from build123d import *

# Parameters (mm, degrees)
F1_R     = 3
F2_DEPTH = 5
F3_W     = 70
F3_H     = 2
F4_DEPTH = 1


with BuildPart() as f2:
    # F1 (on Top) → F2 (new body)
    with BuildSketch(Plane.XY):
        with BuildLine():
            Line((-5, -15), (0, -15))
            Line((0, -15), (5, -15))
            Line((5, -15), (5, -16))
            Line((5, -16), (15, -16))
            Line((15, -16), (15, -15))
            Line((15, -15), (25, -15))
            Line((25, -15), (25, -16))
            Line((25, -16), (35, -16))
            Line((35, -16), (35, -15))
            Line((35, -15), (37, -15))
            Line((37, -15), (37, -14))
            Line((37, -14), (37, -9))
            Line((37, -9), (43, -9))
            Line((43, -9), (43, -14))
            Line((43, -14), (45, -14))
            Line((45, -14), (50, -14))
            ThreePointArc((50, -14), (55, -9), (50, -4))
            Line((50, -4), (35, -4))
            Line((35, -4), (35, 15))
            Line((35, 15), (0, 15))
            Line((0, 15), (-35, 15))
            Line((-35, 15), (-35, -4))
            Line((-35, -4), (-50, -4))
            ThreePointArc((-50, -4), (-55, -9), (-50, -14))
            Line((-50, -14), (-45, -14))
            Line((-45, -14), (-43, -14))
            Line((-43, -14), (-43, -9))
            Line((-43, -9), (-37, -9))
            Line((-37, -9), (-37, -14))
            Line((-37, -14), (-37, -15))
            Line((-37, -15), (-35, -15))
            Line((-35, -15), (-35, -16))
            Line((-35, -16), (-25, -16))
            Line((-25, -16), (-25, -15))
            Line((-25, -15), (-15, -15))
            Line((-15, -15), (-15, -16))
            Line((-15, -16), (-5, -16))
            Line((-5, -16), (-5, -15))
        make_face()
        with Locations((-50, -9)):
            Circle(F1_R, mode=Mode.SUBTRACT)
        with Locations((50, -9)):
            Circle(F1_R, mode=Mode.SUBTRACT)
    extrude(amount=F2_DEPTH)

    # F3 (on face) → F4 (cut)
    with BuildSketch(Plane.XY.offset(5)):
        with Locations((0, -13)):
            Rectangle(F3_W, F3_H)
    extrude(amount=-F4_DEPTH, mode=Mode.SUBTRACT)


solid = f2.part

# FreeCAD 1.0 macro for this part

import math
import FreeCAD as App
import Part
import Sketcher

V = App.Vector


def add_polygon(sketch, points):
    """Adds a closed chain of lines whose ends are joined by coincident constraints."""
    first, n = sketch.GeometryCount, len(points)
    for a, b in zip(points, points[1:] + points[:1]):
        sketch.addGeometry(Part.LineSegment(App.Vector(*a, 0), App.Vector(*b, 0)), False)
    for i in range(n):
        sketch.addConstraint(Sketcher.Constraint("Coincident", first + i, 2, first + (i + 1) % n, 1))

doc = App.newDocument("Part")
body = doc.addObject("PartDesign::Body", "Body")

# Sketch on XY plane
sketch1 = body.newObject("Sketcher::SketchObject", "Sketch")
sketch1.AttachmentSupport = (doc.getObject("XY_Plane"), [""])
sketch1.MapMode = "FlatFace"
sketch1.addGeometry(Part.LineSegment(V(-5, -15, 0), V(5, -15, 0)), False)
sketch1.addGeometry(Part.LineSegment(V(5, -15, 0), V(5, -16, 0)), False)
sketch1.addGeometry(Part.LineSegment(V(5, -16, 0), V(15, -16, 0)), False)
sketch1.addGeometry(Part.LineSegment(V(15, -16, 0), V(15, -15, 0)), False)
sketch1.addGeometry(Part.LineSegment(V(15, -15, 0), V(25, -15, 0)), False)
sketch1.addGeometry(Part.LineSegment(V(25, -15, 0), V(25, -16, 0)), False)
sketch1.addGeometry(Part.LineSegment(V(25, -16, 0), V(35, -16, 0)), False)
sketch1.addGeometry(Part.LineSegment(V(35, -16, 0), V(35, -15, 0)), False)
sketch1.addGeometry(Part.LineSegment(V(35, -15, 0), V(37, -15, 0)), False)
sketch1.addGeometry(Part.LineSegment(V(37, -15, 0), V(37, -9, 0)), False)
sketch1.addGeometry(Part.LineSegment(V(37, -9, 0), V(43, -9, 0)), False)
sketch1.addGeometry(Part.LineSegment(V(43, -9, 0), V(43, -14, 0)), False)
sketch1.addGeometry(Part.LineSegment(V(43, -14, 0), V(50, -14, 0)), False)
sketch1.addGeometry(Part.ArcOfCircle(Part.Circle(V(50, -9, 0), V(0, 0, 1), 5), math.radians(-90), math.radians(90)), False)
sketch1.addGeometry(Part.LineSegment(V(50, -4, 0), V(35, -4, 0)), False)
sketch1.addGeometry(Part.LineSegment(V(35, -4, 0), V(35, 15, 0)), False)
sketch1.addGeometry(Part.LineSegment(V(35, 15, 0), V(-35, 15, 0)), False)
sketch1.addGeometry(Part.LineSegment(V(-35, 15, 0), V(-35, -4, 0)), False)
sketch1.addGeometry(Part.LineSegment(V(-35, -4, 0), V(-50, -4, 0)), False)
sketch1.addGeometry(Part.ArcOfCircle(Part.Circle(V(-50, -9, 0), V(0, 0, 1), 5), math.radians(90), math.radians(270)), False)
sketch1.addGeometry(Part.LineSegment(V(-50, -14, 0), V(-43, -14, 0)), False)
sketch1.addGeometry(Part.LineSegment(V(-43, -14, 0), V(-43, -9, 0)), False)
sketch1.addGeometry(Part.LineSegment(V(-43, -9, 0), V(-37, -9, 0)), False)
sketch1.addGeometry(Part.LineSegment(V(-37, -9, 0), V(-37, -15, 0)), False)
sketch1.addGeometry(Part.LineSegment(V(-37, -15, 0), V(-35, -15, 0)), False)
sketch1.addGeometry(Part.LineSegment(V(-35, -15, 0), V(-35, -16, 0)), False)
sketch1.addGeometry(Part.LineSegment(V(-35, -16, 0), V(-25, -16, 0)), False)
sketch1.addGeometry(Part.LineSegment(V(-25, -16, 0), V(-25, -15, 0)), False)
sketch1.addGeometry(Part.LineSegment(V(-25, -15, 0), V(-15, -15, 0)), False)
sketch1.addGeometry(Part.LineSegment(V(-15, -15, 0), V(-15, -16, 0)), False)
sketch1.addGeometry(Part.LineSegment(V(-15, -16, 0), V(-5, -16, 0)), False)
sketch1.addGeometry(Part.LineSegment(V(-5, -16, 0), V(-5, -15, 0)), False)
sketch1.addGeometry(Part.Circle(V(-50, -9, 0), V(0, 0, 1), 3), False)
sketch1.addGeometry(Part.Circle(V(50, -9, 0), V(0, 0, 1), 3), False)
sketch1.addConstraint(Sketcher.Constraint("Coincident", 0, 2, 1, 1))
sketch1.addConstraint(Sketcher.Constraint("Coincident", 1, 2, 2, 1))
sketch1.addConstraint(Sketcher.Constraint("Coincident", 2, 2, 3, 1))
sketch1.addConstraint(Sketcher.Constraint("Coincident", 3, 2, 4, 1))
sketch1.addConstraint(Sketcher.Constraint("Coincident", 4, 2, 5, 1))
sketch1.addConstraint(Sketcher.Constraint("Coincident", 5, 2, 6, 1))
sketch1.addConstraint(Sketcher.Constraint("Coincident", 6, 2, 7, 1))
sketch1.addConstraint(Sketcher.Constraint("Coincident", 7, 2, 8, 1))
sketch1.addConstraint(Sketcher.Constraint("Coincident", 8, 2, 9, 1))
sketch1.addConstraint(Sketcher.Constraint("Coincident", 9, 2, 10, 1))
sketch1.addConstraint(Sketcher.Constraint("Coincident", 10, 2, 11, 1))
sketch1.addConstraint(Sketcher.Constraint("Coincident", 11, 2, 12, 1))
sketch1.addConstraint(Sketcher.Constraint("Tangent", 12, 2, 13, 1))
sketch1.addConstraint(Sketcher.Constraint("Tangent", 13, 2, 14, 1))
sketch1.addConstraint(Sketcher.Constraint("Coincident", 14, 2, 15, 1))
sketch1.addConstraint(Sketcher.Constraint("Coincident", 15, 2, 16, 1))
sketch1.addConstraint(Sketcher.Constraint("Coincident", 16, 2, 17, 1))
sketch1.addConstraint(Sketcher.Constraint("Coincident", 17, 2, 18, 1))
sketch1.addConstraint(Sketcher.Constraint("Tangent", 18, 2, 19, 1))
sketch1.addConstraint(Sketcher.Constraint("Tangent", 19, 2, 20, 1))
sketch1.addConstraint(Sketcher.Constraint("Coincident", 20, 2, 21, 1))
sketch1.addConstraint(Sketcher.Constraint("Coincident", 21, 2, 22, 1))
sketch1.addConstraint(Sketcher.Constraint("Coincident", 22, 2, 23, 1))
sketch1.addConstraint(Sketcher.Constraint("Coincident", 23, 2, 24, 1))
sketch1.addConstraint(Sketcher.Constraint("Coincident", 24, 2, 25, 1))
sketch1.addConstraint(Sketcher.Constraint("Coincident", 25, 2, 26, 1))
sketch1.addConstraint(Sketcher.Constraint("Coincident", 26, 2, 27, 1))
sketch1.addConstraint(Sketcher.Constraint("Coincident", 27, 2, 28, 1))
sketch1.addConstraint(Sketcher.Constraint("Coincident", 28, 2, 29, 1))
sketch1.addConstraint(Sketcher.Constraint("Coincident", 29, 2, 30, 1))
sketch1.addConstraint(Sketcher.Constraint("Coincident", 30, 2, 31, 1))
sketch1.addConstraint(Sketcher.Constraint("Coincident", 31, 2, 0, 1))
sketch1.addConstraint(Sketcher.Constraint("Horizontal", 0))
sketch1.addConstraint(Sketcher.Constraint("Vertical", 1))
sketch1.addConstraint(Sketcher.Constraint("Horizontal", 2))
sketch1.addConstraint(Sketcher.Constraint("Vertical", 3))
sketch1.addConstraint(Sketcher.Constraint("Horizontal", 4))
sketch1.addConstraint(Sketcher.Constraint("Vertical", 5))
sketch1.addConstraint(Sketcher.Constraint("Horizontal", 6))
sketch1.addConstraint(Sketcher.Constraint("Vertical", 7))
sketch1.addConstraint(Sketcher.Constraint("Horizontal", 8))
sketch1.addConstraint(Sketcher.Constraint("Vertical", 9))
sketch1.addConstraint(Sketcher.Constraint("Horizontal", 10))
sketch1.addConstraint(Sketcher.Constraint("Vertical", 11))
sketch1.addConstraint(Sketcher.Constraint("Horizontal", 12))
sketch1.addConstraint(Sketcher.Constraint("Horizontal", 14))
sketch1.addConstraint(Sketcher.Constraint("Vertical", 15))
sketch1.addConstraint(Sketcher.Constraint("Horizontal", 16))
sketch1.addConstraint(Sketcher.Constraint("Vertical", 17))
sketch1.addConstraint(Sketcher.Constraint("Horizontal", 18))
sketch1.addConstraint(Sketcher.Constraint("Horizontal", 20))
sketch1.addConstraint(Sketcher.Constraint("Vertical", 21))
sketch1.addConstraint(Sketcher.Constraint("Horizontal", 22))
sketch1.addConstraint(Sketcher.Constraint("Vertical", 23))
sketch1.addConstraint(Sketcher.Constraint("Horizontal", 24))
sketch1.addConstraint(Sketcher.Constraint("Vertical", 25))
sketch1.addConstraint(Sketcher.Constraint("Horizontal", 26))
sketch1.addConstraint(Sketcher.Constraint("Vertical", 27))
sketch1.addConstraint(Sketcher.Constraint("Horizontal", 28))
sketch1.addConstraint(Sketcher.Constraint("Vertical", 29))
sketch1.addConstraint(Sketcher.Constraint("Horizontal", 30))
sketch1.addConstraint(Sketcher.Constraint("Vertical", 31))
sketch1.addConstraint(Sketcher.Constraint("Coincident", 32, 3, 19, 3))
sketch1.addConstraint(Sketcher.Constraint("Coincident", 33, 3, 13, 3))
sketch1.addConstraint(Sketcher.Constraint("Equal", 13, 19))
sketch1.addConstraint(Sketcher.Constraint("Equal", 32, 33))
sketch1.addConstraint(Sketcher.Constraint("Symmetric", 7, 2, 16, 2, -1, 1))
sketch1.addConstraint(Sketcher.Constraint("Symmetric", 15, 2, 24, 2, -1, 1))
sketch1.addConstraint(Sketcher.Constraint("Symmetric", 13, 3, 19, 3, -2))
sketch1.addConstraint(Sketcher.Constraint("Symmetric", 10, 2, 21, 2, -2))
sketch1.addConstraint(Sketcher.Constraint("Symmetric", 6, 2, 25, 2, -2))
sketch1.addConstraint(Sketcher.Constraint("Symmetric", 4, 2, 27, 2, -2))
sketch1.addConstraint(Sketcher.Constraint("Symmetric", 2, 2, 29, 2, -2))
sketch1.addConstraint(Sketcher.Constraint("Horizontal", 0, 2, 3, 2))
sketch1.addConstraint(Sketcher.Constraint("Horizontal", 2, 2, 5, 2))
sketch1.addConstraint(Sketcher.Constraint("Horizontal", 4, 2, 7, 2))
sketch1.addConstraint(Sketcher.Constraint("Horizontal", 33, 3, 9, 2))
sketch1.addConstraint(Sketcher.Constraint("Equal", 0, 2))
sketch1.addConstraint(Sketcher.Constraint("Equal", 2, 4))
sketch1.addConstraint(Sketcher.Constraint("Equal", 4, 6))
sketch1.addConstraint(Sketcher.Constraint("Equal", 10, 22))
sketch1.addConstraint(Sketcher.Constraint("Equal", 28, 30))
sketch1.addConstraint(Sketcher.Constraint("Equal", 22, 9))
sketch1.addConstraint(Sketcher.Constraint("Diameter", 32, 6.0))
sketch1.addConstraint(Sketcher.Constraint("Radius", 13, 5.0))
sketch1.addConstraint(Sketcher.Constraint("DistanceX", 0, 1, 0, 2, 10.0))
sketch1.addConstraint(Sketcher.Constraint("DistanceX", 8, 1, 8, 2, 2.0))
sketch1.addConstraint(Sketcher.Constraint("DistanceX", 10, 1, 10, 2, 6.0))
sketch1.addConstraint(Sketcher.Constraint("DistanceX", 12, 1, 12, 2, 7.0))
sketch1.addConstraint(Sketcher.Constraint("DistanceY", 1, 2, 1, 1, 1.0))
sketch1.addConstraint(Sketcher.Constraint("DistanceY", 15, 1, 15, 2, 19.0))
pad1 = body.newObject("PartDesign::Pad", "Pad")
pad1.Profile = sketch1
pad1.Length = 5

# Sketch on XY plane
sketch2 = body.newObject("Sketcher::SketchObject", "Sketch001")
sketch2.AttachmentSupport = (doc.getObject("XY_Plane"), [""])
sketch2.MapMode = "FlatFace"
sketch2.AttachmentOffset = App.Placement(V(0, 0, 5), App.Rotation())
add_polygon(sketch2, [(-35, -12), (-35, -14), (35, -14), (35, -12)])  # lines 0-3
sketch2.addConstraint(Sketcher.Constraint("Vertical", 0))
sketch2.addConstraint(Sketcher.Constraint("Horizontal", 1))
sketch2.addConstraint(Sketcher.Constraint("Vertical", 2))
sketch2.addConstraint(Sketcher.Constraint("Horizontal", 3))
sketch2.addConstraint(Sketcher.Constraint("DistanceX", 1, 1, 1, 2, 70.0))
sketch2.addConstraint(Sketcher.Constraint("DistanceY", 0, 2, 0, 1, 2.0))
sketch2.addConstraint(Sketcher.Constraint("DistanceX", 0, 2, -1, 1, 35.0))
sketch2.addConstraint(Sketcher.Constraint("DistanceY", 0, 2, -1, 1, 14.0))
pocket1 = body.newObject("PartDesign::Pocket", "Pocket")
pocket1.Profile = sketch2
pocket1.Length = 1

doc.recompute()
